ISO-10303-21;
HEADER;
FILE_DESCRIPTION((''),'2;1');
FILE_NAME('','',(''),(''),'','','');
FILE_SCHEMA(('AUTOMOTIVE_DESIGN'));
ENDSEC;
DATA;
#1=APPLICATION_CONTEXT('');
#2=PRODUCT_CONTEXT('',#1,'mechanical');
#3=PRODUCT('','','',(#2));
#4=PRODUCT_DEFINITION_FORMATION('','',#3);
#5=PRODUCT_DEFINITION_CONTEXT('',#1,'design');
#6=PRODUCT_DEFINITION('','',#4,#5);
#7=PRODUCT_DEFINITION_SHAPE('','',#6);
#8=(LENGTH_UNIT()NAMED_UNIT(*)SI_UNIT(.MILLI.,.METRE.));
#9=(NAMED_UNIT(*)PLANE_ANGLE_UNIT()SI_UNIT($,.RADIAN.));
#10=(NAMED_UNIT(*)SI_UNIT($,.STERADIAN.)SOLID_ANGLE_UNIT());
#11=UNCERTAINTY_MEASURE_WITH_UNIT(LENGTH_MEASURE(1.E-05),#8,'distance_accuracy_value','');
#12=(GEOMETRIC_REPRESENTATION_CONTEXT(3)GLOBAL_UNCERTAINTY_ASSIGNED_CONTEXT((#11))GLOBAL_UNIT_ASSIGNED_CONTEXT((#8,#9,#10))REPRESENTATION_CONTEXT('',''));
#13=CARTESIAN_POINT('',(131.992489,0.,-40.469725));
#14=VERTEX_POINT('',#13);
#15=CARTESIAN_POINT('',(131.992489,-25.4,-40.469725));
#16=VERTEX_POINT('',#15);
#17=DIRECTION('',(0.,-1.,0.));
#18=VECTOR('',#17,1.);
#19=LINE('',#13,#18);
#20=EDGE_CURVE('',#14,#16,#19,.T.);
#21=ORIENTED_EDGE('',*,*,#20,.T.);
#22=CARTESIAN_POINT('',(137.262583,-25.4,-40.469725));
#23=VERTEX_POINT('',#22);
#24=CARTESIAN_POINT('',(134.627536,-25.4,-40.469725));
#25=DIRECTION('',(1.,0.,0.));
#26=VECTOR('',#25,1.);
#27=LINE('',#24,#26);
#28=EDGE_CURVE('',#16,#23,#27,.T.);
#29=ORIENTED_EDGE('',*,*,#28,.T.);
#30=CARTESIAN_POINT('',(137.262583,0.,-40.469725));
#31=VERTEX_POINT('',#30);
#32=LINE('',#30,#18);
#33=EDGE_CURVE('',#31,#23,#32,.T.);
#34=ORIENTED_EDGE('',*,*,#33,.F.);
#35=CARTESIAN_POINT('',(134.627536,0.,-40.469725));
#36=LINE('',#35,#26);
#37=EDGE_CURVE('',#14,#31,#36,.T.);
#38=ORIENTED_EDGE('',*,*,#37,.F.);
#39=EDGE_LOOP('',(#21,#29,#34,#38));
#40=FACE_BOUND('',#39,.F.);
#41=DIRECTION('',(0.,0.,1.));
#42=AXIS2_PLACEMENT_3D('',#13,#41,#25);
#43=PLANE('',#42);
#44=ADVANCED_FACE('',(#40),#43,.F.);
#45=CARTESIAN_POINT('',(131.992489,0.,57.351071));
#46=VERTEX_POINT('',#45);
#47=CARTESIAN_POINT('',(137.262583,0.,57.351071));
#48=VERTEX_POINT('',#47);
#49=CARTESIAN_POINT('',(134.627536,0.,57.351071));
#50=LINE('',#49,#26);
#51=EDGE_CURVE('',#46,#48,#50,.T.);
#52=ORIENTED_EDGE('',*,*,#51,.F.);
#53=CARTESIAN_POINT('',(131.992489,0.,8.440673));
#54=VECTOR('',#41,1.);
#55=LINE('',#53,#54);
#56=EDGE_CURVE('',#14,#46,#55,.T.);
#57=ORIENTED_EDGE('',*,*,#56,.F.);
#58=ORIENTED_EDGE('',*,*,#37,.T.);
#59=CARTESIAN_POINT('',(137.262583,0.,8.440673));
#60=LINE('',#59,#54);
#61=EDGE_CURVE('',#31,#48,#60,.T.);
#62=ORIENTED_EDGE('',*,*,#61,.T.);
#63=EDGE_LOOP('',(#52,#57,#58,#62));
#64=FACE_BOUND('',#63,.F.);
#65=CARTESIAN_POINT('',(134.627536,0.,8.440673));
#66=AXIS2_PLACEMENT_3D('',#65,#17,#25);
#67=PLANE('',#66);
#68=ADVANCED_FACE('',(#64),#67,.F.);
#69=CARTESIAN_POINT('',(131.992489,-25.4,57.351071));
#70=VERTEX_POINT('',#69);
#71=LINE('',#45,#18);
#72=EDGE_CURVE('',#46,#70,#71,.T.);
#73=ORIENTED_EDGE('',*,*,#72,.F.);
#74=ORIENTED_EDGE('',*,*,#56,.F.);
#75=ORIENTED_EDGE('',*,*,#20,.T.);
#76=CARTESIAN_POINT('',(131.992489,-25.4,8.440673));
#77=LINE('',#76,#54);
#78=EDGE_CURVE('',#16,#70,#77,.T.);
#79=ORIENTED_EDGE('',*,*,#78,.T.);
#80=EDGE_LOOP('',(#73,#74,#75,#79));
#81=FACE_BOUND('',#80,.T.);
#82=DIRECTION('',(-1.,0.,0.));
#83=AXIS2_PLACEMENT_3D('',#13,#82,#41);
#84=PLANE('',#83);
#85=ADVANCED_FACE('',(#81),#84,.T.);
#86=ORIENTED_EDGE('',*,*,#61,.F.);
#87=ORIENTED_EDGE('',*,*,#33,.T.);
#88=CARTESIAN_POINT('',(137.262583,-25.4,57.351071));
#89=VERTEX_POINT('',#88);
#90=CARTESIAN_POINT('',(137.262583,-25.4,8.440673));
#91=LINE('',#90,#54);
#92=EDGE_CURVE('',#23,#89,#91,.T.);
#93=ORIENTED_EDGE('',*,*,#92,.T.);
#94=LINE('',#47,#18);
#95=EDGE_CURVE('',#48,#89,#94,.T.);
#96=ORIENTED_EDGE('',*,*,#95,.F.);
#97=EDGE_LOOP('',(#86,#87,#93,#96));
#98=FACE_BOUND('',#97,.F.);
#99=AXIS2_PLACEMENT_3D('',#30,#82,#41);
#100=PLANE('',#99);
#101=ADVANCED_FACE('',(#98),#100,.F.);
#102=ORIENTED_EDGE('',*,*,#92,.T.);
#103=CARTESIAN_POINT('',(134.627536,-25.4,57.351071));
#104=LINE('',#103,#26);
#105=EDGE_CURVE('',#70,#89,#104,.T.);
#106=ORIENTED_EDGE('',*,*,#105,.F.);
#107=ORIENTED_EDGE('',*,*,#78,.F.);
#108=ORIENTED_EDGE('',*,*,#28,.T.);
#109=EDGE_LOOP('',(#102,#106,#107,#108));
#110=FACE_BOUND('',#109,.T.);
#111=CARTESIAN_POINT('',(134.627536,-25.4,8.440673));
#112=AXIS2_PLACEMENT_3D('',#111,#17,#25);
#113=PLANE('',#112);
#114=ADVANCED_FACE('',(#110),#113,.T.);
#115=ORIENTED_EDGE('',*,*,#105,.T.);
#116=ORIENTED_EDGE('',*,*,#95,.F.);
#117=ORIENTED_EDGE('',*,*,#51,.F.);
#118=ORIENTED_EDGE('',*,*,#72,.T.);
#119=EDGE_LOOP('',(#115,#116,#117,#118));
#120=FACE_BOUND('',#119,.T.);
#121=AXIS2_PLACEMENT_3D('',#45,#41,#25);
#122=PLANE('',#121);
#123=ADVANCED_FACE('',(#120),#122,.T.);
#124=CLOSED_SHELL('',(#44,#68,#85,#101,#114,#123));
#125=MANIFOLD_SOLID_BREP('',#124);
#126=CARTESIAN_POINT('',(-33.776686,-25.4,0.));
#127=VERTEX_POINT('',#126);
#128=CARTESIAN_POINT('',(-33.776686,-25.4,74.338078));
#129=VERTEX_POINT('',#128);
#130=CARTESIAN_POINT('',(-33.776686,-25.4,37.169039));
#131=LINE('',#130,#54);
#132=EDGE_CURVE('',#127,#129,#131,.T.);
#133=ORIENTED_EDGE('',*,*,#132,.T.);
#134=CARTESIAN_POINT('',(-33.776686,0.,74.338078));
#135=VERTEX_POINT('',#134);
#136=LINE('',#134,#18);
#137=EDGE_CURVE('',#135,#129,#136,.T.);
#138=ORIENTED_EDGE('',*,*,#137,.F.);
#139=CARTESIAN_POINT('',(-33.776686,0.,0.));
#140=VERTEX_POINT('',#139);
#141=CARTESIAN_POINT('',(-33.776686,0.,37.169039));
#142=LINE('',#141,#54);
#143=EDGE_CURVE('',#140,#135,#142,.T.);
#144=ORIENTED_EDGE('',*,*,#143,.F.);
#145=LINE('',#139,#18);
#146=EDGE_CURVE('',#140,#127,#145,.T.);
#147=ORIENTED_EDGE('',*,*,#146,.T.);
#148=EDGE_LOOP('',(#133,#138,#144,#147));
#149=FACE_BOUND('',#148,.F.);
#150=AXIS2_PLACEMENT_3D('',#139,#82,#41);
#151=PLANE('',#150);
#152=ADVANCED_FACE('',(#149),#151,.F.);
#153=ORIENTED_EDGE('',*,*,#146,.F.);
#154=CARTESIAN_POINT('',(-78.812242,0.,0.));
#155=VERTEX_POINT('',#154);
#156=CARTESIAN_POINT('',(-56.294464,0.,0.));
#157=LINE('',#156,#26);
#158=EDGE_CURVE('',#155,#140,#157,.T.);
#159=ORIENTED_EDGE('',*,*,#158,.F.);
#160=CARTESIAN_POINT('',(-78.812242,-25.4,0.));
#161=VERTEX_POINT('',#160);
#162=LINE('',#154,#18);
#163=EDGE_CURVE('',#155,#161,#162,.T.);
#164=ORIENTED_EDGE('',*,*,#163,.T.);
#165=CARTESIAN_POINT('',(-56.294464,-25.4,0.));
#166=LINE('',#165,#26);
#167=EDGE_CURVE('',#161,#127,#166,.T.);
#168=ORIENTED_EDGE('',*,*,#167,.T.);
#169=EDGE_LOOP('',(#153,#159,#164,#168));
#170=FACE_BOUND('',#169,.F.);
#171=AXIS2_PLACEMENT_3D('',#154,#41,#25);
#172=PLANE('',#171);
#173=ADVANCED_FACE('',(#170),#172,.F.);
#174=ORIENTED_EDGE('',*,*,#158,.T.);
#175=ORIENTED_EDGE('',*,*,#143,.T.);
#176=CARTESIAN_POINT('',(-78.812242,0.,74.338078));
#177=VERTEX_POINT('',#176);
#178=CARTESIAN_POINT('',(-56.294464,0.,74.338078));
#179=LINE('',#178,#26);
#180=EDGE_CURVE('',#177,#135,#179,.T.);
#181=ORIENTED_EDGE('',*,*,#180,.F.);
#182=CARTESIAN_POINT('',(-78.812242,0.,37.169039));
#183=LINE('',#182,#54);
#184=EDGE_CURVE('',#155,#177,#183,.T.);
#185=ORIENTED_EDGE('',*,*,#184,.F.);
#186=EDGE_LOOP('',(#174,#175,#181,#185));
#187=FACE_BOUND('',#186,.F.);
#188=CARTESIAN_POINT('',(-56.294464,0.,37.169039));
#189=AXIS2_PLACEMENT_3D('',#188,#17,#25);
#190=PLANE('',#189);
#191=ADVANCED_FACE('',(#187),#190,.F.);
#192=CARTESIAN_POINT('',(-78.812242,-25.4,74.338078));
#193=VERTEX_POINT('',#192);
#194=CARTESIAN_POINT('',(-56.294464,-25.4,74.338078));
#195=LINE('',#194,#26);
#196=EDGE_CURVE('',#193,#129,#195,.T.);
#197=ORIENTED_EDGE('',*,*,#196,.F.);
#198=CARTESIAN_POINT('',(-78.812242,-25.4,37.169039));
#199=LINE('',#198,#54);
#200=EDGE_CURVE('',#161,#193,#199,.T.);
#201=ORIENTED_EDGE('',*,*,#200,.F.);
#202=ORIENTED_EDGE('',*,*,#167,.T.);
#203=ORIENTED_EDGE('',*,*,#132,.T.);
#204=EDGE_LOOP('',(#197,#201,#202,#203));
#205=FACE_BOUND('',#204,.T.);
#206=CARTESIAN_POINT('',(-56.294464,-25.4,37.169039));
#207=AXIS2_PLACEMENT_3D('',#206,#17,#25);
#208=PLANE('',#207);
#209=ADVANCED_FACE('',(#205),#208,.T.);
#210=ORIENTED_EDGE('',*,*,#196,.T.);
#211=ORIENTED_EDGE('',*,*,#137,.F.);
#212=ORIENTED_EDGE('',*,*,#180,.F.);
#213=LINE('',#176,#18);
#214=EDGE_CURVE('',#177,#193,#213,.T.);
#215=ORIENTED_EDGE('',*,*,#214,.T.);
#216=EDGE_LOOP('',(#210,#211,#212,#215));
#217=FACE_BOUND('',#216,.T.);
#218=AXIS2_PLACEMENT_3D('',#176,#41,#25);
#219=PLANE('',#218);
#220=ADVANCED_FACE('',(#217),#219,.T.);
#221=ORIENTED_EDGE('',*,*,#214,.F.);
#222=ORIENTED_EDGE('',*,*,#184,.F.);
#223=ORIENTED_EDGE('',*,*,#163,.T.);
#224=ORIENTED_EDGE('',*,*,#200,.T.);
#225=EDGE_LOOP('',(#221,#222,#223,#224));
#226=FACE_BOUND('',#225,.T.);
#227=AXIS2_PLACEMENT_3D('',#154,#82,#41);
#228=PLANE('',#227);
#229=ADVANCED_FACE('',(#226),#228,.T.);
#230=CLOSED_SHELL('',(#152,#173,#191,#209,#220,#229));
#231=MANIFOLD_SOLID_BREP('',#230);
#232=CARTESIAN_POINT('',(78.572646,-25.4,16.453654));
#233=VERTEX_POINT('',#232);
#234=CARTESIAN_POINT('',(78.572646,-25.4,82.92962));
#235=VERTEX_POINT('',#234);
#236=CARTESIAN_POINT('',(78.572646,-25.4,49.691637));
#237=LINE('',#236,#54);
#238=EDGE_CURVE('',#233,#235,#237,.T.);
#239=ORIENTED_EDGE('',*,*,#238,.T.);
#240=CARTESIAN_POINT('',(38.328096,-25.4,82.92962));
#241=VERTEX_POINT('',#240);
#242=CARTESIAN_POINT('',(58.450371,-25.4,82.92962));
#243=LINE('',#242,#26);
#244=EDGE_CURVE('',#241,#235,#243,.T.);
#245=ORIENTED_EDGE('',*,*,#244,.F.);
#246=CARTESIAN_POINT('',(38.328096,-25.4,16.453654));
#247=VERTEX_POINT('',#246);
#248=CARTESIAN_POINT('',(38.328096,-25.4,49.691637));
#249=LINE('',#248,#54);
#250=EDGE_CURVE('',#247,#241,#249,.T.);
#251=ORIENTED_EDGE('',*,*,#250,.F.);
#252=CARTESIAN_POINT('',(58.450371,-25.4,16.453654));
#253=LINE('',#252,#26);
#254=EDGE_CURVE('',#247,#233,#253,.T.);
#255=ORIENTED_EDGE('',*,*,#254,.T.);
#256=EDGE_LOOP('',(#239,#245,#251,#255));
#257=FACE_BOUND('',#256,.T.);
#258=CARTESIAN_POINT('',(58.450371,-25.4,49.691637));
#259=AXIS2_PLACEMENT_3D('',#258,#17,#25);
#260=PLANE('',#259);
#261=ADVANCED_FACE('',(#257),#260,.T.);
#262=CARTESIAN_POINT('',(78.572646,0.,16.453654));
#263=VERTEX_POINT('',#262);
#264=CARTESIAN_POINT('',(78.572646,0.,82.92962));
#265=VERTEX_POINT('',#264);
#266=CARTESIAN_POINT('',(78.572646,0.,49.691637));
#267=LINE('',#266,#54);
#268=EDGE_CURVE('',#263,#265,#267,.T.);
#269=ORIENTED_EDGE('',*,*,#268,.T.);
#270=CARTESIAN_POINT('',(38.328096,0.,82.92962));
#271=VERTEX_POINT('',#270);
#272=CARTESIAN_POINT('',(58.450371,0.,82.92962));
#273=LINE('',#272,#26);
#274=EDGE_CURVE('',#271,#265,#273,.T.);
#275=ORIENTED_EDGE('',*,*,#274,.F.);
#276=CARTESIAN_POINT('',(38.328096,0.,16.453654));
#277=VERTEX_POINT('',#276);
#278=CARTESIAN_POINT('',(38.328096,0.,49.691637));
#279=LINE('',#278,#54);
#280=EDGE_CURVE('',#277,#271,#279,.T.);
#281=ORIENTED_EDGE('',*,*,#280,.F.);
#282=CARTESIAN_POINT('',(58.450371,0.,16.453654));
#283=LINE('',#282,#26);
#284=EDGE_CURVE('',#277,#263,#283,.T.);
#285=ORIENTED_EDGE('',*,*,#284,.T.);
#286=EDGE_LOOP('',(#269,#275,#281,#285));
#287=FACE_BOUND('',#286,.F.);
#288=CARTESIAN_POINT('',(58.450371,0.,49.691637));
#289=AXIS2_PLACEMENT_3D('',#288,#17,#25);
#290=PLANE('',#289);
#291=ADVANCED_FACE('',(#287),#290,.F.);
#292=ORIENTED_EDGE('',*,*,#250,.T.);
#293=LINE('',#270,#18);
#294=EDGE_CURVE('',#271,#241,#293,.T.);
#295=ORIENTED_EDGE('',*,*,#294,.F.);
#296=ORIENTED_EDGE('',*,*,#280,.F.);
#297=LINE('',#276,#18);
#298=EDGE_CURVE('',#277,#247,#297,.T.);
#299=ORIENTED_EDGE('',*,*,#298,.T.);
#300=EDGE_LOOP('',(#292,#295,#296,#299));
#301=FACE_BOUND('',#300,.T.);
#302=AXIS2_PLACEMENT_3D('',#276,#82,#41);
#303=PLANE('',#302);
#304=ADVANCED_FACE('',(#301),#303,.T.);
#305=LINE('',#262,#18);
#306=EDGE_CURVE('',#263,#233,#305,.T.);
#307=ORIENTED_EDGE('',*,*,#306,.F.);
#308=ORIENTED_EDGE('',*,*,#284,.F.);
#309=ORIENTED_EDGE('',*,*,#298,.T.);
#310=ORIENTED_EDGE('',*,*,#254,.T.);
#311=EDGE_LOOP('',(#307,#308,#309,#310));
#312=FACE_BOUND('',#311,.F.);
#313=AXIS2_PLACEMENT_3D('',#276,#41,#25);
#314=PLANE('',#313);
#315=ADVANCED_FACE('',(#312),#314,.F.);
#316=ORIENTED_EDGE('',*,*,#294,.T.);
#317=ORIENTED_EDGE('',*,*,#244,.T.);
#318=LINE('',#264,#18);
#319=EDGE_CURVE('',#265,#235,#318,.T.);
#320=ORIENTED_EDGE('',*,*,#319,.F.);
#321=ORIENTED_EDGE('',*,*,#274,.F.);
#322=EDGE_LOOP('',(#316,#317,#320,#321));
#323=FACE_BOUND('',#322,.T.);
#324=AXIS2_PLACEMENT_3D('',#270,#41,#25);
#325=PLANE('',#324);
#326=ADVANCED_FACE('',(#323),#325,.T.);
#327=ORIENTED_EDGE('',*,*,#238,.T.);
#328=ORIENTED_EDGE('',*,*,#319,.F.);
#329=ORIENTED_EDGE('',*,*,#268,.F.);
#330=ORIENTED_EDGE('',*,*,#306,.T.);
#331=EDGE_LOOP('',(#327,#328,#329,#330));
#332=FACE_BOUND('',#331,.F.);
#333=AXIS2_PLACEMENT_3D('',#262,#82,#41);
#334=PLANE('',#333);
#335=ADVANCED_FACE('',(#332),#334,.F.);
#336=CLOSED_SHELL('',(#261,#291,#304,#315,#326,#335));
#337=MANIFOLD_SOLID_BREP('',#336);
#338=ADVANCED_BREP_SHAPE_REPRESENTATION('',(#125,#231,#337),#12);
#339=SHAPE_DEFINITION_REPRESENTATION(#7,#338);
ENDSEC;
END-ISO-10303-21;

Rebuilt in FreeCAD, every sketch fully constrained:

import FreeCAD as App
import Part
import Sketcher
Q = App.Units.Quantity


def add_polygon(sketch, points):
    """Adds a closed chain of lines whose ends are joined by coincident constraints."""
    first, n = sketch.GeometryCount, len(points)
    for a, b in zip(points, points[1:] + points[:1]):
        sketch.addGeometry(Part.LineSegment(App.Vector(*a, 0), App.Vector(*b, 0)), False)
    for i in range(n):
        sketch.addConstraint(Sketcher.Constraint("Coincident", first + i, 2, first + (i + 1) % n, 1))

doc = App.newDocument("Part")
body = doc.addObject("PartDesign::Body", "Body")
body.AllowCompound = True

sketch1 = doc.addObject("Sketcher::SketchObject", "Sketch")
body.addObject(sketch1)
sketch1.AttachmentSupport = (doc.XZ_Plane, [""])
sketch1.MapMode = "FlatFace"
add_polygon(sketch1, [(-79, 74), (-79, 0), (-34, 0), (-34, 74)])
add_polygon(sketch1, [(38, 83), (38, 16), (79, 16), (79, 83)])
add_polygon(sketch1, [(132, 57), (132, -40), (137, -40), (137, 57)])
sketch1.addConstraint(Sketcher.Constraint("Vertical", 0))
sketch1.addConstraint(Sketcher.Constraint("Horizontal", 1))
sketch1.addConstraint(Sketcher.Constraint("Vertical", 2))
sketch1.addConstraint(Sketcher.Constraint("Horizontal", 3))
sketch1.addConstraint(Sketcher.Constraint("Vertical", 4))
sketch1.addConstraint(Sketcher.Constraint("Horizontal", 5))
sketch1.addConstraint(Sketcher.Constraint("Vertical", 6))
sketch1.addConstraint(Sketcher.Constraint("Horizontal", 7))
sketch1.addConstraint(Sketcher.Constraint("Vertical", 8))
sketch1.addConstraint(Sketcher.Constraint("Horizontal", 9))
sketch1.addConstraint(Sketcher.Constraint("Vertical", 10))
sketch1.addConstraint(Sketcher.Constraint("Horizontal", 11))
sketch1.addConstraint(Sketcher.Constraint("PointOnObject", 0, 2, -1))
sketch1.addConstraint(Sketcher.Constraint("DistanceX", 5, 1, 5, 2, 40.24455))
sketch1.addConstraint(Sketcher.Constraint("DistanceX", 1, 1, 1, 2, 45.035556))
sketch1.addConstraint(Sketcher.Constraint("DistanceX", 9, 1, 9, 2, 5.270094))
sketch1.addConstraint(Sketcher.Constraint("DistanceY", 0, 2, 0, 1, 74.338078))
sketch1.addConstraint(Sketcher.Constraint("DistanceY", 4, 2, 4, 1, 66.475965))
sketch1.addConstraint(Sketcher.Constraint("DistanceY", 8, 2, 8, 1, 97.820796))
sketch1.addConstraint(Sketcher.Constraint("DistanceX", 0, 2, -1, 1, 78.812242))
sketch1.addConstraint(Sketcher.Constraint("DistanceY", -1, 1, 6, 2, 82.92962))
sketch1.addConstraint(Sketcher.Constraint("DistanceX", -1, 1, 8, 2, 131.992489))
sketch1.addConstraint(Sketcher.Constraint("DistanceY", -1, 1, 10, 2, 57.351071))
sketch1.addConstraint(Sketcher.Constraint("DistanceX", 1, 2, 4, 2, 72.104782))
pad1 = doc.addObject("PartDesign::Pad", "Pad")
body.addObject(pad1)
pad1.Profile = sketch1
pad1.Length = Q("1 in")

doc.recompute()
